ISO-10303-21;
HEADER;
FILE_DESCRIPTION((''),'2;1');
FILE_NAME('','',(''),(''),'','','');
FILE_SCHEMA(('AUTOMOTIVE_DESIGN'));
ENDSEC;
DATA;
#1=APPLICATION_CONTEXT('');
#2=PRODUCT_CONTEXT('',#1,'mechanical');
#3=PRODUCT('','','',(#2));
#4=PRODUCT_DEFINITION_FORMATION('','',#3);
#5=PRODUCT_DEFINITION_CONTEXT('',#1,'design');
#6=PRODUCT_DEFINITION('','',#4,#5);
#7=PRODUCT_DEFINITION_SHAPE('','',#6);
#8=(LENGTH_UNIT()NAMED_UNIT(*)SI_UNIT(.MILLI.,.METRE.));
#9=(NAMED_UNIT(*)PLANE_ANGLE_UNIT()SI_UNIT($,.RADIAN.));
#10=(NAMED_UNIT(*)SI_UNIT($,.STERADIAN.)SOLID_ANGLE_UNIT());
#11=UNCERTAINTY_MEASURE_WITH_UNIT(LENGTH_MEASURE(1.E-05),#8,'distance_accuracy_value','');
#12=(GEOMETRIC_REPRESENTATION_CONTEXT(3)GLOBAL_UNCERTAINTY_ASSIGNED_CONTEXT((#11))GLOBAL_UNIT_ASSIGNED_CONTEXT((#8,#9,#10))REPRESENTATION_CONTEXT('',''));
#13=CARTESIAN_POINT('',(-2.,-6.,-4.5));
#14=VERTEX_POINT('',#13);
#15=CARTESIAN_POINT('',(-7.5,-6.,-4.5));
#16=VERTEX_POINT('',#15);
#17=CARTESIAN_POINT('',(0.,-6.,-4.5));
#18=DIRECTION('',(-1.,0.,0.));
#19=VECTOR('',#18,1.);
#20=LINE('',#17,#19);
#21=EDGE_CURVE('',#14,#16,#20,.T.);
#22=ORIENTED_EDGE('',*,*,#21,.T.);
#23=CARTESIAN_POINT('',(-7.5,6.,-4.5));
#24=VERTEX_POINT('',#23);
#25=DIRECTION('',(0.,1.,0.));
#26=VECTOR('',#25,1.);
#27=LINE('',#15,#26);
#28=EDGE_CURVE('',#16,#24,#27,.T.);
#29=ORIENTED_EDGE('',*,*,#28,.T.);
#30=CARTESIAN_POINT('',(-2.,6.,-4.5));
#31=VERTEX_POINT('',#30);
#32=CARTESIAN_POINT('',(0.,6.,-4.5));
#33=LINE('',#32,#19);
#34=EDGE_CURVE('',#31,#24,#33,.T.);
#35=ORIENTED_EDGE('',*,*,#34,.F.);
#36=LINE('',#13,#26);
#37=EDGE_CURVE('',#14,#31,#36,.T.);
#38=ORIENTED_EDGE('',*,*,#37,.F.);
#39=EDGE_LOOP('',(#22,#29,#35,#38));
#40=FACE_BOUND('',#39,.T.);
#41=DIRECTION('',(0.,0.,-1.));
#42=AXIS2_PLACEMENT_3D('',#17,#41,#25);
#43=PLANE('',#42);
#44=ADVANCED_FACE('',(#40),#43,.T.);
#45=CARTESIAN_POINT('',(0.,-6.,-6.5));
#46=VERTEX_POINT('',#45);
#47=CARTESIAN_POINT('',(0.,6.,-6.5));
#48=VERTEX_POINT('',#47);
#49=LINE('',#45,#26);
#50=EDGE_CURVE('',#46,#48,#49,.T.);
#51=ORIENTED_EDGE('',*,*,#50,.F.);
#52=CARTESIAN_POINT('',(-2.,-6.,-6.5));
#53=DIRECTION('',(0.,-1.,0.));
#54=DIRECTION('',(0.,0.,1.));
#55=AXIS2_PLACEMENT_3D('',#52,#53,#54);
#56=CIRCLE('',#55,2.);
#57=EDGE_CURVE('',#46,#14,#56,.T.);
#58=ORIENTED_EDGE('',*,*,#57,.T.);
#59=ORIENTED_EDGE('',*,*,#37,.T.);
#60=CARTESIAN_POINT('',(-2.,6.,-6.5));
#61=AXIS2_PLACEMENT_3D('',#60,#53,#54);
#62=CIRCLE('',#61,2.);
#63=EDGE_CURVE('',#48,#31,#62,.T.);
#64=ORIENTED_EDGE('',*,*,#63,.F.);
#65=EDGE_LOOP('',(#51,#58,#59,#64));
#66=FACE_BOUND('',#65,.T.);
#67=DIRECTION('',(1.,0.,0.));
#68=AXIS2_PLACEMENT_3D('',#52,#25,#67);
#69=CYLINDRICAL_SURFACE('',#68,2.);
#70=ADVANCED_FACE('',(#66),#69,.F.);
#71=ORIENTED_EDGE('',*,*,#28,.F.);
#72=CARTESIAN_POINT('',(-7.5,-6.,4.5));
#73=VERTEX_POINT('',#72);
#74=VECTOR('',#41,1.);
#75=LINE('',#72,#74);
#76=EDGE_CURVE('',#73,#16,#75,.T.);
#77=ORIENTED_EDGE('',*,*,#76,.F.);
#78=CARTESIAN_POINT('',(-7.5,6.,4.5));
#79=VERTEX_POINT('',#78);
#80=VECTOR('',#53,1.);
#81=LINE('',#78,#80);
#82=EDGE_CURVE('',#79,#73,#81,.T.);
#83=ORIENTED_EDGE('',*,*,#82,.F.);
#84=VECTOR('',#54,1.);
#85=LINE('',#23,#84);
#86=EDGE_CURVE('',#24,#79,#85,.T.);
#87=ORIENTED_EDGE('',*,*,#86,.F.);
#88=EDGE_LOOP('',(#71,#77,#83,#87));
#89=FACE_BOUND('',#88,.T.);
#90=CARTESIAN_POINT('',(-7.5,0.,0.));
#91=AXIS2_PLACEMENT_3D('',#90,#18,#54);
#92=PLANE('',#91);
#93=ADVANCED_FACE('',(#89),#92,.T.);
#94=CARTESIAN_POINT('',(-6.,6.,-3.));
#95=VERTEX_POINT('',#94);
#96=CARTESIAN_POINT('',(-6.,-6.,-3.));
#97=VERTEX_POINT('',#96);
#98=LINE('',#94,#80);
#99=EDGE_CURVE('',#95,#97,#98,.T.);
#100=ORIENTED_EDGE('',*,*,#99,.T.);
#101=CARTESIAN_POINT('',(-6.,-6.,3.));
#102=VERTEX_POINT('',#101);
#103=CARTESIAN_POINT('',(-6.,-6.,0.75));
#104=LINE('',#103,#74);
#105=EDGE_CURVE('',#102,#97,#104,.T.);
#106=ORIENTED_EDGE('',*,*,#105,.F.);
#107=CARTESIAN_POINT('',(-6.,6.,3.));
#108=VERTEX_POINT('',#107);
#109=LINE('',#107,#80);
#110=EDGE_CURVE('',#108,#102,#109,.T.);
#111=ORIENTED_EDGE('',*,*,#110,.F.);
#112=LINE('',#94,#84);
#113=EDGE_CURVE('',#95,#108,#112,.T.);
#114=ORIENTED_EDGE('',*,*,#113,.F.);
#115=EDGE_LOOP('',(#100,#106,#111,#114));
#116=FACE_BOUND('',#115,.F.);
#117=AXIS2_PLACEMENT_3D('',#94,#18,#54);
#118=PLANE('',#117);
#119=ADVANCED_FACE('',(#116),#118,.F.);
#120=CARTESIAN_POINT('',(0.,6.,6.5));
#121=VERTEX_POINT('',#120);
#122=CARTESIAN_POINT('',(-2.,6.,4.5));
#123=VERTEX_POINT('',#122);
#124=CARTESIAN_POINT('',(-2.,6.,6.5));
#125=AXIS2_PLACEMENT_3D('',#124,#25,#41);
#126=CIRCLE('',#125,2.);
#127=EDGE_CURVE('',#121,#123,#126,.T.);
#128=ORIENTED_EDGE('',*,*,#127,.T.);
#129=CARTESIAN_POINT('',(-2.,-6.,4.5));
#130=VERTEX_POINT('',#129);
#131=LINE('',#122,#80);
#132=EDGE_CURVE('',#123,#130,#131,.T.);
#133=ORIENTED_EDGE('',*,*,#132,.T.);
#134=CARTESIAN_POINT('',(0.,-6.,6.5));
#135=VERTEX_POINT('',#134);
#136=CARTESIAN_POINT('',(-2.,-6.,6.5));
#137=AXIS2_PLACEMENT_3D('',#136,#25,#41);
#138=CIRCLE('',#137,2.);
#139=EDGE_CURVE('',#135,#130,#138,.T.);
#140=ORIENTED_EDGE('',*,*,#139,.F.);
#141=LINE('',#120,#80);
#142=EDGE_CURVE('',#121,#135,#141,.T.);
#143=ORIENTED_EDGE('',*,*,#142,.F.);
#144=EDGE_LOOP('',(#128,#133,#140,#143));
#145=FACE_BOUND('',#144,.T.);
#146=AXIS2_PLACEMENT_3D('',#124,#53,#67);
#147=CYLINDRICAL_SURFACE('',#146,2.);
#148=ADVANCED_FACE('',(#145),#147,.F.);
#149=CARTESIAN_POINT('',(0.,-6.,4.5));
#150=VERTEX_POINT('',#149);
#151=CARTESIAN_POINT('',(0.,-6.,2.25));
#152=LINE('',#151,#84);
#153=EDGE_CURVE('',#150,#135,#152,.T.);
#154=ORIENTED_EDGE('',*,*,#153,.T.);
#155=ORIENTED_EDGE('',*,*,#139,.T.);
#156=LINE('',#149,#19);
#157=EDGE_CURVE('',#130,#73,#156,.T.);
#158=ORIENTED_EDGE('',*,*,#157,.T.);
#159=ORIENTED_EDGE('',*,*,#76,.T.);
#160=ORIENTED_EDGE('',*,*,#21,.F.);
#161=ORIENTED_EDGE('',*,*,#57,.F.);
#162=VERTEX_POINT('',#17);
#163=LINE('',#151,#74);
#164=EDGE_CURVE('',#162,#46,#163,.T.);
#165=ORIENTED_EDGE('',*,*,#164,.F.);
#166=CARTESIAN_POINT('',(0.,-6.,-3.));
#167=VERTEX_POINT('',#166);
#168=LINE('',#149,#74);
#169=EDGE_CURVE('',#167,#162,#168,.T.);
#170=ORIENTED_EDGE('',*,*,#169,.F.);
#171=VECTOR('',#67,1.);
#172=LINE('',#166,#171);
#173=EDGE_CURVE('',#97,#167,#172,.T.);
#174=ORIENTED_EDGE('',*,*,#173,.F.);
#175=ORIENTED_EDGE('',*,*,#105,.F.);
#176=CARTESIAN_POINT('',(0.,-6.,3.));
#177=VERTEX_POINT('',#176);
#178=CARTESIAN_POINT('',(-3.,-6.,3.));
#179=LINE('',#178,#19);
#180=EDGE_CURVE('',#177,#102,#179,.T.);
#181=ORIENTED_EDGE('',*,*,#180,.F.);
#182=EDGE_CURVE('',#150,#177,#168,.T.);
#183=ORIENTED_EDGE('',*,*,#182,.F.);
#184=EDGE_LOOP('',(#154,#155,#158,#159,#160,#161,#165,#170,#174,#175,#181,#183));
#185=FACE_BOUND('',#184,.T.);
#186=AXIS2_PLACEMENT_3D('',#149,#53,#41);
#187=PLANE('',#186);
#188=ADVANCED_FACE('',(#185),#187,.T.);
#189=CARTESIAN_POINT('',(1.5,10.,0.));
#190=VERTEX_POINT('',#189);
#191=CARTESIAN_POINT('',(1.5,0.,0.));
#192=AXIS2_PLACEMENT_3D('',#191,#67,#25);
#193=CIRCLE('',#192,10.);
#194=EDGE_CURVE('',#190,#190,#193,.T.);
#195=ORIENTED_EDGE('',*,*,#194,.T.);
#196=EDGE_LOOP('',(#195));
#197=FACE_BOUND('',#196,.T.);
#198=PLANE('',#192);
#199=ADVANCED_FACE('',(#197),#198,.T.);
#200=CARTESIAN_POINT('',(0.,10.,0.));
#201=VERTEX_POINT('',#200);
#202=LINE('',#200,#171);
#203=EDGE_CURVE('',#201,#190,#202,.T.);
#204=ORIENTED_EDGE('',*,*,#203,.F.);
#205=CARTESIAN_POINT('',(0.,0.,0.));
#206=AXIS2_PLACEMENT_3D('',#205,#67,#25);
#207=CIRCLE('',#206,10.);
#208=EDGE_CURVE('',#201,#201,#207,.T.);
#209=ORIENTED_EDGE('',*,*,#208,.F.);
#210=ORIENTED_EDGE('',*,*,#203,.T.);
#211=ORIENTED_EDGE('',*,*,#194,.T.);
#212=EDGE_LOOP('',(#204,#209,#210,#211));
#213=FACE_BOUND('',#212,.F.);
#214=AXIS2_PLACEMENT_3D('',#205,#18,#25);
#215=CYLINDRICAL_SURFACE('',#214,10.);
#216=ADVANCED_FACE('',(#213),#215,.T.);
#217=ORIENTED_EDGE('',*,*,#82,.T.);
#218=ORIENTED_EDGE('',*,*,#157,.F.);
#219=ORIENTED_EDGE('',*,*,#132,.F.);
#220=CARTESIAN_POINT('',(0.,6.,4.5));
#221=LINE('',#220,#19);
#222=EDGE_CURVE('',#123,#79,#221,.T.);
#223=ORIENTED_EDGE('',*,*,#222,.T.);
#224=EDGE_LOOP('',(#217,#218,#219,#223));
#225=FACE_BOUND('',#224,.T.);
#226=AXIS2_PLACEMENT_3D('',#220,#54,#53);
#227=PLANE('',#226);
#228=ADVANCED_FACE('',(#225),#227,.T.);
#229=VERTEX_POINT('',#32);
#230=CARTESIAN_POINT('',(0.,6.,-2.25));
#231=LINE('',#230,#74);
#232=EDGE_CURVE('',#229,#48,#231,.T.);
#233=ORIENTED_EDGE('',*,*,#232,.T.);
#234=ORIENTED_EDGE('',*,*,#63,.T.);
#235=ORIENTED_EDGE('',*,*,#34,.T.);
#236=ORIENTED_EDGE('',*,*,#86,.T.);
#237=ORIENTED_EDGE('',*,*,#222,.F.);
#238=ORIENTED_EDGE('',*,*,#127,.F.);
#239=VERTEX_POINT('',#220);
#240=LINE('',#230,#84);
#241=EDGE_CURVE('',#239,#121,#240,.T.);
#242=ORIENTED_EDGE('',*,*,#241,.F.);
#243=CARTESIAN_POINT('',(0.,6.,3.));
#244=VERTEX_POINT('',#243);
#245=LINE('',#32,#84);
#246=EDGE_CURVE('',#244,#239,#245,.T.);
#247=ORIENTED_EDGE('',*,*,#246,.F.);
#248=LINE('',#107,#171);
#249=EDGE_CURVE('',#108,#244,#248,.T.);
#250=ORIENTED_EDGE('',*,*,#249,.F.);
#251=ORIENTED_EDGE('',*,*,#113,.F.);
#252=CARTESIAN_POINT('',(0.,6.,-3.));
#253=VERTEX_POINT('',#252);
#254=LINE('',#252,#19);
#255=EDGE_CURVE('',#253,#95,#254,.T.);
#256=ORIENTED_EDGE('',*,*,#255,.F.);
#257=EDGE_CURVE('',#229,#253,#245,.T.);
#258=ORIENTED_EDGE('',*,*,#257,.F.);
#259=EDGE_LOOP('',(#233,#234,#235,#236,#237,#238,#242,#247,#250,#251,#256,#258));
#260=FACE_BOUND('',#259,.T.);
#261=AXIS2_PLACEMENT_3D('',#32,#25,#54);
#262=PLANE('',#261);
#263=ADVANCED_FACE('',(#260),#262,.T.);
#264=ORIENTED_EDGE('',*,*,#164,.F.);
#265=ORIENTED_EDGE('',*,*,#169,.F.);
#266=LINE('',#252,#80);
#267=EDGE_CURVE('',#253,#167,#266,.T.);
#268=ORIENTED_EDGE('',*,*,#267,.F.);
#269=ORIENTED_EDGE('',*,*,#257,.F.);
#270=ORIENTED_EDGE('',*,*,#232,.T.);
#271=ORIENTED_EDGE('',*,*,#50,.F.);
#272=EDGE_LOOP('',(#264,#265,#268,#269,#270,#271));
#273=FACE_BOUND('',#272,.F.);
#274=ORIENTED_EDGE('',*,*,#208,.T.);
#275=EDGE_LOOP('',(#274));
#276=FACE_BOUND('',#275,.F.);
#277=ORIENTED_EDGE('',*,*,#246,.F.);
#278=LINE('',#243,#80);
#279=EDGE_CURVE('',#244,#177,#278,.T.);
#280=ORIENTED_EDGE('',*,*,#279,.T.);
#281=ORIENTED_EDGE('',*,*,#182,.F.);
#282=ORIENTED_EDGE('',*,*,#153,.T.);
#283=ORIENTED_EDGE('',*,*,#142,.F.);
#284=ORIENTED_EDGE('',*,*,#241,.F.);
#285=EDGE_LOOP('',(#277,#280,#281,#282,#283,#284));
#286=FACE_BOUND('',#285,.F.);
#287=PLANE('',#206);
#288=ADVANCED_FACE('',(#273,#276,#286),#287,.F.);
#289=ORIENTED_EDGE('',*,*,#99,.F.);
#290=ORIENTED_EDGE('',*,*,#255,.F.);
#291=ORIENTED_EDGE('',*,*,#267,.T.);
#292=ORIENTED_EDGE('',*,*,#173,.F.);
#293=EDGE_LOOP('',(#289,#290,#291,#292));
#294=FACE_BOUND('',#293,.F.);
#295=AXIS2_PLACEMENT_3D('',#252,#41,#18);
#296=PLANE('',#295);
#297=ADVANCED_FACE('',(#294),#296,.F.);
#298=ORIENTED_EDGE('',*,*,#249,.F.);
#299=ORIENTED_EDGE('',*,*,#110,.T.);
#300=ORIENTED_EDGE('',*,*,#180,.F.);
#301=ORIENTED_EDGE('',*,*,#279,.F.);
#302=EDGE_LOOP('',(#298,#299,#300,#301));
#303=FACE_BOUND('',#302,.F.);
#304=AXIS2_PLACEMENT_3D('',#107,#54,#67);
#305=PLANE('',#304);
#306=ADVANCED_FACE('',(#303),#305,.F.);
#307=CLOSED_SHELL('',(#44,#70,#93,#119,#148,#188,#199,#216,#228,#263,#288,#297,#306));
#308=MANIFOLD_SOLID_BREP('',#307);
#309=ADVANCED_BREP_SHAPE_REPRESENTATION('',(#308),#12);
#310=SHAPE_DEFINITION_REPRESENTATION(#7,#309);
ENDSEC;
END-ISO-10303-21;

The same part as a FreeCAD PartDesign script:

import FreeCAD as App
import Part
import Sketcher


def edges_at(feature, points):
    """Names of the edges that pass closest to the given points."""
    edges = feature.Shape.Edges
    near = lambda p: min(range(len(edges)), key=lambda i: edges[i].distToShape(Part.Vertex(*p))[0])
    return sorted({f"Edge{near(p) + 1}" for p in points})

doc = App.newDocument("Part")
body = doc.addObject("PartDesign::Body", "Body")

sketch1 = body.newObject("Sketcher::SketchObject", "Sketch")
sketch1.AttachmentSupport = (doc.getObject("YZ_Plane"), [""])
sketch1.MapMode = "FlatFace"
sketch1.addGeometry(Part.Circle(App.Vector(0, 0, 0), App.Vector(0, 0, 1), 10), False)
sketch1.addConstraint(Sketcher.Constraint("Coincident", 0, 3, -1, 1))
sketch1.addConstraint(Sketcher.Constraint("Diameter", 0, 20.0))
pad1 = body.newObject("PartDesign::Pad", "Pad")
pad1.Profile = sketch1
pad1.Length = 1.5

sketch2 = body.newObject("Sketcher::SketchObject", "Sketch001")
sketch2.AttachmentSupport = (doc.getObject("YZ_Plane"), [""])
sketch2.MapMode = "FlatFace"
sketch2.addGeometry(Part.LineSegment(App.Vector(-6, -4.5, 0), App.Vector(-6, 4.5, 0)), False)
sketch2.addGeometry(Part.LineSegment(App.Vector(-6, 4.5, 0), App.Vector(6, 4.5, 0)), False)
sketch2.addGeometry(Part.LineSegment(App.Vector(6, 4.5, 0), App.Vector(6, -4.5, 0)), False)
sketch2.addGeometry(Part.LineSegment(App.Vector(6, -4.5, 0), App.Vector(-6, -4.5, 0)), False)
sketch2.addConstraint(Sketcher.Constraint("Coincident", 0, 2, 1, 1))
sketch2.addConstraint(Sketcher.Constraint("Coincident", 1, 2, 2, 1))
sketch2.addConstraint(Sketcher.Constraint("Coincident", 2, 2, 3, 1))
sketch2.addConstraint(Sketcher.Constraint("Coincident", 3, 2, 0, 1))
sketch2.addConstraint(Sketcher.Constraint("Vertical", 0))
sketch2.addConstraint(Sketcher.Constraint("Horizontal", 1))
sketch2.addConstraint(Sketcher.Constraint("Vertical", 2))
sketch2.addConstraint(Sketcher.Constraint("Horizontal", 3))
sketch2.addConstraint(Sketcher.Constraint("Symmetric", 0, 2, 2, 2, -1, 1))
sketch2.addConstraint(Sketcher.Constraint("DistanceX", 1, 1, 1, 2, 12.0))
sketch2.addConstraint(Sketcher.Constraint("DistanceY", 0, 1, 0, 2, 9.0))
pad2 = body.newObject("PartDesign::Pad", "Pad001")
pad2.Profile = sketch2
pad2.Length = 7.5
pad2.Reversed = True

sketch3 = body.newObject("Sketcher::SketchObject", "Sketch002")
sketch3.AttachmentSupport = (doc.getObject("XZ_Plane"), [""])
sketch3.MapMode = "FlatFace"
sketch3.AttachmentOffset = App.Placement(App.Vector(0, 0, -6), App.Rotation())
sketch3.addGeometry(Part.LineSegment(App.Vector(-6, -3, 0), App.Vector(-6, 3, 0)), False)
sketch3.addGeometry(Part.LineSegment(App.Vector(-6, 3, 0), App.Vector(0, 3, 0)), False)
sketch3.addGeometry(Part.LineSegment(App.Vector(0, 3, 0), App.Vector(0, -3, 0)), False)
sketch3.addGeometry(Part.LineSegment(App.Vector(0, -3, 0), App.Vector(-6, -3, 0)), False)
sketch3.addConstraint(Sketcher.Constraint("Coincident", 0, 2, 1, 1))
sketch3.addConstraint(Sketcher.Constraint("Coincident", 1, 2, 2, 1))
sketch3.addConstraint(Sketcher.Constraint("Coincident", 2, 2, 3, 1))
sketch3.addConstraint(Sketcher.Constraint("Coincident", 3, 2, 0, 1))
sketch3.addConstraint(Sketcher.Constraint("Vertical", 0))
sketch3.addConstraint(Sketcher.Constraint("Horizontal", 1))
sketch3.addConstraint(Sketcher.Constraint("Vertical", 2))
sketch3.addConstraint(Sketcher.Constraint("Horizontal", 3))
sketch3.addConstraint(Sketcher.Constraint("Symmetric", 1, 2, 2, 2, -1, 1))
sketch3.addConstraint(Sketcher.Constraint("Equal", 3, 0))
sketch3.addConstraint(Sketcher.Constraint("DistanceX", 1, 1, 1, 2, 6.0))
pocket1 = body.newObject("PartDesign::Pocket", "Pocket")
pocket1.Profile = sketch3
pocket1.Type = "ThroughAll"
pocket1.Reversed = True
doc.recompute()

fillet = body.newObject("PartDesign::Fillet", "Fillet")
fillet.Base = (pocket1, edges_at(pocket1, [(0, 0, -4.5), (0, 0, 4.5)]))
fillet.Radius = 2

doc.recompute()
